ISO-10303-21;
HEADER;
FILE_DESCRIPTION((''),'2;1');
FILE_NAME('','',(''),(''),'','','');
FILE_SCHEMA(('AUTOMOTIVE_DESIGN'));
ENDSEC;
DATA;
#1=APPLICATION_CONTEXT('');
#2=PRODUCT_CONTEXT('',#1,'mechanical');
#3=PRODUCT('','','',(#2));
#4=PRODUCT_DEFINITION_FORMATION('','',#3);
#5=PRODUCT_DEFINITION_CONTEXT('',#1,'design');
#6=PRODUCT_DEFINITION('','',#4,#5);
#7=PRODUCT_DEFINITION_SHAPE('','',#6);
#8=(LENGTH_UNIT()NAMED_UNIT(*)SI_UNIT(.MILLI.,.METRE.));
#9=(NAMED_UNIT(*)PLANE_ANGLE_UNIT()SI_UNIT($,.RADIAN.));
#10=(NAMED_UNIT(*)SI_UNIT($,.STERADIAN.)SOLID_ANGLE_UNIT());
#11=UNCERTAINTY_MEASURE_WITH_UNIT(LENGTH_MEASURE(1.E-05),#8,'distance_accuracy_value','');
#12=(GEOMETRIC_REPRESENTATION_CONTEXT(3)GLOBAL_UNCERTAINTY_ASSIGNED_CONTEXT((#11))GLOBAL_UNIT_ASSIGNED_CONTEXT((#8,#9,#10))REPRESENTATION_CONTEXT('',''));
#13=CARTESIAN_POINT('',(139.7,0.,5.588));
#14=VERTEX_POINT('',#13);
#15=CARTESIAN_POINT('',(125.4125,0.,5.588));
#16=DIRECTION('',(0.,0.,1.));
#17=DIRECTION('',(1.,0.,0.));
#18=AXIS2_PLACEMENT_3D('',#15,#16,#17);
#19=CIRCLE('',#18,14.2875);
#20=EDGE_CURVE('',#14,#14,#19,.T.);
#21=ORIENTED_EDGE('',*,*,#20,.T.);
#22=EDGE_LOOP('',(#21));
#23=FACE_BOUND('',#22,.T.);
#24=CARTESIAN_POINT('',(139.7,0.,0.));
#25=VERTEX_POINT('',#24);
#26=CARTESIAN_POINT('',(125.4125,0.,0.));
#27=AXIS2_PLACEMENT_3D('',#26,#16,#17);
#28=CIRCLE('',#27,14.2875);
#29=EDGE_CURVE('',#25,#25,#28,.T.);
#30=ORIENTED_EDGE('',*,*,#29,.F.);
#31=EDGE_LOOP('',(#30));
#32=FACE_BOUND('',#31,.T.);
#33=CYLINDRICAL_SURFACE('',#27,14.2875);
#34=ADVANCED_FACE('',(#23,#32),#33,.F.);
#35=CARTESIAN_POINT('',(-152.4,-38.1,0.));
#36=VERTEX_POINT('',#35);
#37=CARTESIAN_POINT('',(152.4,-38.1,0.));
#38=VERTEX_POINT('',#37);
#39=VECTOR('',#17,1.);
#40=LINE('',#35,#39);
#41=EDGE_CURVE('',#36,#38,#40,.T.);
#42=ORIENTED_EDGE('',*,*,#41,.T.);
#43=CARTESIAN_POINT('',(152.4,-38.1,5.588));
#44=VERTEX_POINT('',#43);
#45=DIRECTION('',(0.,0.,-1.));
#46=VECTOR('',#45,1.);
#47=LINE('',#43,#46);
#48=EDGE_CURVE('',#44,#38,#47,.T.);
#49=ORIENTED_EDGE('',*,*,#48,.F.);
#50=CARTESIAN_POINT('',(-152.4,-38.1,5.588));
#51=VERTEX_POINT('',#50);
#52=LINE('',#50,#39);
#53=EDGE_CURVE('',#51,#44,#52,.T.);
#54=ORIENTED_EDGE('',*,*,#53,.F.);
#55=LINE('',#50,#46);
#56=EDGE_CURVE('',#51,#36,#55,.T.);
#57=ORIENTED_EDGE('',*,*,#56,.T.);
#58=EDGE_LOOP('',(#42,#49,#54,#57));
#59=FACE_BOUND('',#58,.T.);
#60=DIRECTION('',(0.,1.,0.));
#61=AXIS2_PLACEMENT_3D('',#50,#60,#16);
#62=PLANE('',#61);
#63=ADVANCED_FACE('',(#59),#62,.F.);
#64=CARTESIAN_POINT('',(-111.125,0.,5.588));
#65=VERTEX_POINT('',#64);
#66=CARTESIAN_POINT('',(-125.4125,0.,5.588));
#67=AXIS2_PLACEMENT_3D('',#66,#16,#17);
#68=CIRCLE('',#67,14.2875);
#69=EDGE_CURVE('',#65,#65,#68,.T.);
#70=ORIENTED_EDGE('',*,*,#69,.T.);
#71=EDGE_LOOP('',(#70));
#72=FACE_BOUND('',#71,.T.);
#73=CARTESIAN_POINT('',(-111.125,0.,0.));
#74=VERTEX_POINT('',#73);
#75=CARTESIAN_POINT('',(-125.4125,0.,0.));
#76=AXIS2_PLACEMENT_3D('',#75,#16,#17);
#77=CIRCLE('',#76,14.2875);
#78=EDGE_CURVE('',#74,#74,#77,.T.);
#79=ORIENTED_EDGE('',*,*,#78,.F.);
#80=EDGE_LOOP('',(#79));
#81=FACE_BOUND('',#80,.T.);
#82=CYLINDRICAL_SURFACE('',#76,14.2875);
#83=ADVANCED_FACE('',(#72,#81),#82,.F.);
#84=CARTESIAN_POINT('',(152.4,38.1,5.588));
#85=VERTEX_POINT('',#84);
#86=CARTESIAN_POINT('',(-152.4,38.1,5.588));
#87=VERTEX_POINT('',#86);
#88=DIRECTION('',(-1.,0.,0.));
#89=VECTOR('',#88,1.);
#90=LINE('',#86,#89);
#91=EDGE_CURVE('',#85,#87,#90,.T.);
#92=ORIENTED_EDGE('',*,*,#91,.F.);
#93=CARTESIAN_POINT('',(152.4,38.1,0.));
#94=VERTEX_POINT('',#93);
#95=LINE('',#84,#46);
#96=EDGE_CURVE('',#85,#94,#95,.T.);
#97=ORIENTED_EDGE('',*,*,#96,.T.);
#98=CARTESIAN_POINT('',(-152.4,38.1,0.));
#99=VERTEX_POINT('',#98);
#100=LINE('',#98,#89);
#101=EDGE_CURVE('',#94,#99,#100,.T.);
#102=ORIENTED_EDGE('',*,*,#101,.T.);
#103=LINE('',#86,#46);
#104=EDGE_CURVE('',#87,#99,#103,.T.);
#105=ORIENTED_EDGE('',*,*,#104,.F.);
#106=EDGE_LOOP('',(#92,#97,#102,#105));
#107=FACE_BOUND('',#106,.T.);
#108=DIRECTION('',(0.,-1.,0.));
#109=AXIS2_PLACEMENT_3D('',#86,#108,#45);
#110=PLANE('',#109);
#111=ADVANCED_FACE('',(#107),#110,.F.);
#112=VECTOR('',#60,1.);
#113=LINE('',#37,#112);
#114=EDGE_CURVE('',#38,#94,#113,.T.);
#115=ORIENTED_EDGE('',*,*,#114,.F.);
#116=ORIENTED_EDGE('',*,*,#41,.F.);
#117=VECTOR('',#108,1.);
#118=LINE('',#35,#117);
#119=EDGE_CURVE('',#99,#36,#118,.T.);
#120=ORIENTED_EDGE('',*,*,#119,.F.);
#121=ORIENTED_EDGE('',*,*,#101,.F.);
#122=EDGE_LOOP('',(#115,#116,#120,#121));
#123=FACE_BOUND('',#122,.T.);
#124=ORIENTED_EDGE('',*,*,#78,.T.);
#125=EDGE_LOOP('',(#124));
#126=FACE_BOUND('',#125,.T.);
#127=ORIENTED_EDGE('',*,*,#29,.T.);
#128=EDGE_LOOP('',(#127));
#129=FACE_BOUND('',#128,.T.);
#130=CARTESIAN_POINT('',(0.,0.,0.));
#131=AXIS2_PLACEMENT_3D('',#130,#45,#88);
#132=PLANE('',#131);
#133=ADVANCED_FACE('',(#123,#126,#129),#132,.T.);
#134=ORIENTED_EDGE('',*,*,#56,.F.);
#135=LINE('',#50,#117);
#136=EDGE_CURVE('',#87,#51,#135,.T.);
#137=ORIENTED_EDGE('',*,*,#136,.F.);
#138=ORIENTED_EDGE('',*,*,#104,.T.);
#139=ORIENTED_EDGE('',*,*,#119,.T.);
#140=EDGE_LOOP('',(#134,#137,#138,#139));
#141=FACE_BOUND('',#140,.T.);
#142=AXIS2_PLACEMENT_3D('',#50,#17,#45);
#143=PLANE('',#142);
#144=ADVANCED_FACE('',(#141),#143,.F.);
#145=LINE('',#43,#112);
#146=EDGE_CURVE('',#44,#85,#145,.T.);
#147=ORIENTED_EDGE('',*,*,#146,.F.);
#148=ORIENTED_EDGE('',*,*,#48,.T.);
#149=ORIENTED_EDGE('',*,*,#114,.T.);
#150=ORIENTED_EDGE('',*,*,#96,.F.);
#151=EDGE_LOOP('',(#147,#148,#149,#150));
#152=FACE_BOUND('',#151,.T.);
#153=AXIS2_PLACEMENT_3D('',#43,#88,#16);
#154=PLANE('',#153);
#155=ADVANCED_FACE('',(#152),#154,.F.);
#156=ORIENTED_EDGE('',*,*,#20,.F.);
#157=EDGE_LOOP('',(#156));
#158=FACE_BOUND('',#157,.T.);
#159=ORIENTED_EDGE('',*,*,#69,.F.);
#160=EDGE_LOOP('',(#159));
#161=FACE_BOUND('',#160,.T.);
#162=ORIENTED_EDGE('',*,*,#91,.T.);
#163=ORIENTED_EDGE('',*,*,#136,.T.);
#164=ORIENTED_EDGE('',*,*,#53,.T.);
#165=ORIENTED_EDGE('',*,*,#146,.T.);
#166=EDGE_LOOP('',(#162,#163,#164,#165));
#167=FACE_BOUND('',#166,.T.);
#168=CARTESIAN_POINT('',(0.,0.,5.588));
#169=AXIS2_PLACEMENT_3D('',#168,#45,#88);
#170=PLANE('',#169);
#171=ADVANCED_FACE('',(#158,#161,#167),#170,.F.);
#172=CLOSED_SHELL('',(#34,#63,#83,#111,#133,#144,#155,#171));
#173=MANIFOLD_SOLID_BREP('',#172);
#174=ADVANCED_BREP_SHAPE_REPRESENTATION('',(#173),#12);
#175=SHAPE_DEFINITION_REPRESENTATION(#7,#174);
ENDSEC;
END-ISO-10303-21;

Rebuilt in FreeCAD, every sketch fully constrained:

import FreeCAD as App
import Part
import Sketcher

V = App.Vector
Q = App.Units.Quantity


def add_polygon(sketch, points):
    """Adds a closed chain of lines whose ends are joined by coincident constraints."""
    first, n = sketch.GeometryCount, len(points)
    for a, b in zip(points, points[1:] + points[:1]):
        sketch.addGeometry(Part.LineSegment(App.Vector(*a, 0), App.Vector(*b, 0)), False)
    for i in range(n):
        sketch.addConstraint(Sketcher.Constraint("Coincident", first + i, 2, first + (i + 1) % n, 1))

doc = App.newDocument("Part")
params = doc.addObject("Spreadsheet::Sheet", "Params")
for row, (alias, value) in enumerate([
    ("sketch1_width", "12 in"),
    ("sketch1_height", "3 in"),
    ("pad1_length", "0.22 in"),
    ("sketch2_diameter", "1.125 in"),
], start=1):
    params.set(f"A{row}", alias)
    params.set(f"B{row}", "=" + value)
    params.setAlias(f"B{row}", alias)

body = doc.addObject("PartDesign::Body", "Body")

sketch1 = doc.addObject("Sketcher::SketchObject", "Sketch")
body.addObject(sketch1)
sketch1.AttachmentSupport = (doc.XY_Plane, [""])
sketch1.MapMode = "FlatFace"
add_polygon(sketch1, [(-152, 38), (-152, -38), (152, -38), (152, 38)])
sketch1.addConstraint([
    Sketcher.Constraint("Vertical", 0),
    Sketcher.Constraint("Horizontal", 1),
    Sketcher.Constraint("Vertical", 2),
    Sketcher.Constraint("Horizontal", 3),
    Sketcher.Constraint("Symmetric", 0, 2, 2, 2, -1, 1),
    Sketcher.Constraint("DistanceX", 1, 1, 1, 2, Q("12 in")),
    Sketcher.Constraint("DistanceY", 0, 2, 0, 1, Q("3 in")),
])
sketch1.setExpression("Constraints[9]", "Params.sketch1_width")
sketch1.setExpression("Constraints[10]", "Params.sketch1_height")
pad1 = doc.addObject("PartDesign::Pad", "Pad")
body.addObject(pad1)
pad1.Profile = sketch1
pad1.setExpression("Length", "Params.pad1_length")

sketch2 = doc.addObject("Sketcher::SketchObject", "Sketch001")
body.addObject(sketch2)
sketch2.AttachmentSupport = (doc.XY_Plane, [""])
sketch2.MapMode = "FlatFace"
sketch2.AttachmentOffset = App.Placement(V(0, 0, 0.22 * 25.4), App.Rotation())
sketch2.addGeometry([
    Part.Circle(V(-125, 0, 0), V(0, 0, 1), 14),
    Part.Circle(V(125, 0, 0), V(0, 0, 1), 14),
], False)
sketch2.addConstraint([
    Sketcher.Constraint("Equal", 0, 1),
    Sketcher.Constraint("Symmetric", 0, 3, 1, 3, -1, 1),
    Sketcher.Constraint("PointOnObject", 0, 3, -1),
    Sketcher.Constraint("Diameter", 0, Q("1.125 in")),
    Sketcher.Constraint("DistanceX", 0, 3, -1, 1, Q("4.9375 in")),
])
sketch2.setExpression("Constraints[3]", "Params.sketch2_diameter")
pocket1 = doc.addObject("PartDesign::Pocket", "Pocket")
body.addObject(pocket1)
pocket1.Profile = sketch2
pocket1.Type = "ThroughAll"

doc.recompute()
